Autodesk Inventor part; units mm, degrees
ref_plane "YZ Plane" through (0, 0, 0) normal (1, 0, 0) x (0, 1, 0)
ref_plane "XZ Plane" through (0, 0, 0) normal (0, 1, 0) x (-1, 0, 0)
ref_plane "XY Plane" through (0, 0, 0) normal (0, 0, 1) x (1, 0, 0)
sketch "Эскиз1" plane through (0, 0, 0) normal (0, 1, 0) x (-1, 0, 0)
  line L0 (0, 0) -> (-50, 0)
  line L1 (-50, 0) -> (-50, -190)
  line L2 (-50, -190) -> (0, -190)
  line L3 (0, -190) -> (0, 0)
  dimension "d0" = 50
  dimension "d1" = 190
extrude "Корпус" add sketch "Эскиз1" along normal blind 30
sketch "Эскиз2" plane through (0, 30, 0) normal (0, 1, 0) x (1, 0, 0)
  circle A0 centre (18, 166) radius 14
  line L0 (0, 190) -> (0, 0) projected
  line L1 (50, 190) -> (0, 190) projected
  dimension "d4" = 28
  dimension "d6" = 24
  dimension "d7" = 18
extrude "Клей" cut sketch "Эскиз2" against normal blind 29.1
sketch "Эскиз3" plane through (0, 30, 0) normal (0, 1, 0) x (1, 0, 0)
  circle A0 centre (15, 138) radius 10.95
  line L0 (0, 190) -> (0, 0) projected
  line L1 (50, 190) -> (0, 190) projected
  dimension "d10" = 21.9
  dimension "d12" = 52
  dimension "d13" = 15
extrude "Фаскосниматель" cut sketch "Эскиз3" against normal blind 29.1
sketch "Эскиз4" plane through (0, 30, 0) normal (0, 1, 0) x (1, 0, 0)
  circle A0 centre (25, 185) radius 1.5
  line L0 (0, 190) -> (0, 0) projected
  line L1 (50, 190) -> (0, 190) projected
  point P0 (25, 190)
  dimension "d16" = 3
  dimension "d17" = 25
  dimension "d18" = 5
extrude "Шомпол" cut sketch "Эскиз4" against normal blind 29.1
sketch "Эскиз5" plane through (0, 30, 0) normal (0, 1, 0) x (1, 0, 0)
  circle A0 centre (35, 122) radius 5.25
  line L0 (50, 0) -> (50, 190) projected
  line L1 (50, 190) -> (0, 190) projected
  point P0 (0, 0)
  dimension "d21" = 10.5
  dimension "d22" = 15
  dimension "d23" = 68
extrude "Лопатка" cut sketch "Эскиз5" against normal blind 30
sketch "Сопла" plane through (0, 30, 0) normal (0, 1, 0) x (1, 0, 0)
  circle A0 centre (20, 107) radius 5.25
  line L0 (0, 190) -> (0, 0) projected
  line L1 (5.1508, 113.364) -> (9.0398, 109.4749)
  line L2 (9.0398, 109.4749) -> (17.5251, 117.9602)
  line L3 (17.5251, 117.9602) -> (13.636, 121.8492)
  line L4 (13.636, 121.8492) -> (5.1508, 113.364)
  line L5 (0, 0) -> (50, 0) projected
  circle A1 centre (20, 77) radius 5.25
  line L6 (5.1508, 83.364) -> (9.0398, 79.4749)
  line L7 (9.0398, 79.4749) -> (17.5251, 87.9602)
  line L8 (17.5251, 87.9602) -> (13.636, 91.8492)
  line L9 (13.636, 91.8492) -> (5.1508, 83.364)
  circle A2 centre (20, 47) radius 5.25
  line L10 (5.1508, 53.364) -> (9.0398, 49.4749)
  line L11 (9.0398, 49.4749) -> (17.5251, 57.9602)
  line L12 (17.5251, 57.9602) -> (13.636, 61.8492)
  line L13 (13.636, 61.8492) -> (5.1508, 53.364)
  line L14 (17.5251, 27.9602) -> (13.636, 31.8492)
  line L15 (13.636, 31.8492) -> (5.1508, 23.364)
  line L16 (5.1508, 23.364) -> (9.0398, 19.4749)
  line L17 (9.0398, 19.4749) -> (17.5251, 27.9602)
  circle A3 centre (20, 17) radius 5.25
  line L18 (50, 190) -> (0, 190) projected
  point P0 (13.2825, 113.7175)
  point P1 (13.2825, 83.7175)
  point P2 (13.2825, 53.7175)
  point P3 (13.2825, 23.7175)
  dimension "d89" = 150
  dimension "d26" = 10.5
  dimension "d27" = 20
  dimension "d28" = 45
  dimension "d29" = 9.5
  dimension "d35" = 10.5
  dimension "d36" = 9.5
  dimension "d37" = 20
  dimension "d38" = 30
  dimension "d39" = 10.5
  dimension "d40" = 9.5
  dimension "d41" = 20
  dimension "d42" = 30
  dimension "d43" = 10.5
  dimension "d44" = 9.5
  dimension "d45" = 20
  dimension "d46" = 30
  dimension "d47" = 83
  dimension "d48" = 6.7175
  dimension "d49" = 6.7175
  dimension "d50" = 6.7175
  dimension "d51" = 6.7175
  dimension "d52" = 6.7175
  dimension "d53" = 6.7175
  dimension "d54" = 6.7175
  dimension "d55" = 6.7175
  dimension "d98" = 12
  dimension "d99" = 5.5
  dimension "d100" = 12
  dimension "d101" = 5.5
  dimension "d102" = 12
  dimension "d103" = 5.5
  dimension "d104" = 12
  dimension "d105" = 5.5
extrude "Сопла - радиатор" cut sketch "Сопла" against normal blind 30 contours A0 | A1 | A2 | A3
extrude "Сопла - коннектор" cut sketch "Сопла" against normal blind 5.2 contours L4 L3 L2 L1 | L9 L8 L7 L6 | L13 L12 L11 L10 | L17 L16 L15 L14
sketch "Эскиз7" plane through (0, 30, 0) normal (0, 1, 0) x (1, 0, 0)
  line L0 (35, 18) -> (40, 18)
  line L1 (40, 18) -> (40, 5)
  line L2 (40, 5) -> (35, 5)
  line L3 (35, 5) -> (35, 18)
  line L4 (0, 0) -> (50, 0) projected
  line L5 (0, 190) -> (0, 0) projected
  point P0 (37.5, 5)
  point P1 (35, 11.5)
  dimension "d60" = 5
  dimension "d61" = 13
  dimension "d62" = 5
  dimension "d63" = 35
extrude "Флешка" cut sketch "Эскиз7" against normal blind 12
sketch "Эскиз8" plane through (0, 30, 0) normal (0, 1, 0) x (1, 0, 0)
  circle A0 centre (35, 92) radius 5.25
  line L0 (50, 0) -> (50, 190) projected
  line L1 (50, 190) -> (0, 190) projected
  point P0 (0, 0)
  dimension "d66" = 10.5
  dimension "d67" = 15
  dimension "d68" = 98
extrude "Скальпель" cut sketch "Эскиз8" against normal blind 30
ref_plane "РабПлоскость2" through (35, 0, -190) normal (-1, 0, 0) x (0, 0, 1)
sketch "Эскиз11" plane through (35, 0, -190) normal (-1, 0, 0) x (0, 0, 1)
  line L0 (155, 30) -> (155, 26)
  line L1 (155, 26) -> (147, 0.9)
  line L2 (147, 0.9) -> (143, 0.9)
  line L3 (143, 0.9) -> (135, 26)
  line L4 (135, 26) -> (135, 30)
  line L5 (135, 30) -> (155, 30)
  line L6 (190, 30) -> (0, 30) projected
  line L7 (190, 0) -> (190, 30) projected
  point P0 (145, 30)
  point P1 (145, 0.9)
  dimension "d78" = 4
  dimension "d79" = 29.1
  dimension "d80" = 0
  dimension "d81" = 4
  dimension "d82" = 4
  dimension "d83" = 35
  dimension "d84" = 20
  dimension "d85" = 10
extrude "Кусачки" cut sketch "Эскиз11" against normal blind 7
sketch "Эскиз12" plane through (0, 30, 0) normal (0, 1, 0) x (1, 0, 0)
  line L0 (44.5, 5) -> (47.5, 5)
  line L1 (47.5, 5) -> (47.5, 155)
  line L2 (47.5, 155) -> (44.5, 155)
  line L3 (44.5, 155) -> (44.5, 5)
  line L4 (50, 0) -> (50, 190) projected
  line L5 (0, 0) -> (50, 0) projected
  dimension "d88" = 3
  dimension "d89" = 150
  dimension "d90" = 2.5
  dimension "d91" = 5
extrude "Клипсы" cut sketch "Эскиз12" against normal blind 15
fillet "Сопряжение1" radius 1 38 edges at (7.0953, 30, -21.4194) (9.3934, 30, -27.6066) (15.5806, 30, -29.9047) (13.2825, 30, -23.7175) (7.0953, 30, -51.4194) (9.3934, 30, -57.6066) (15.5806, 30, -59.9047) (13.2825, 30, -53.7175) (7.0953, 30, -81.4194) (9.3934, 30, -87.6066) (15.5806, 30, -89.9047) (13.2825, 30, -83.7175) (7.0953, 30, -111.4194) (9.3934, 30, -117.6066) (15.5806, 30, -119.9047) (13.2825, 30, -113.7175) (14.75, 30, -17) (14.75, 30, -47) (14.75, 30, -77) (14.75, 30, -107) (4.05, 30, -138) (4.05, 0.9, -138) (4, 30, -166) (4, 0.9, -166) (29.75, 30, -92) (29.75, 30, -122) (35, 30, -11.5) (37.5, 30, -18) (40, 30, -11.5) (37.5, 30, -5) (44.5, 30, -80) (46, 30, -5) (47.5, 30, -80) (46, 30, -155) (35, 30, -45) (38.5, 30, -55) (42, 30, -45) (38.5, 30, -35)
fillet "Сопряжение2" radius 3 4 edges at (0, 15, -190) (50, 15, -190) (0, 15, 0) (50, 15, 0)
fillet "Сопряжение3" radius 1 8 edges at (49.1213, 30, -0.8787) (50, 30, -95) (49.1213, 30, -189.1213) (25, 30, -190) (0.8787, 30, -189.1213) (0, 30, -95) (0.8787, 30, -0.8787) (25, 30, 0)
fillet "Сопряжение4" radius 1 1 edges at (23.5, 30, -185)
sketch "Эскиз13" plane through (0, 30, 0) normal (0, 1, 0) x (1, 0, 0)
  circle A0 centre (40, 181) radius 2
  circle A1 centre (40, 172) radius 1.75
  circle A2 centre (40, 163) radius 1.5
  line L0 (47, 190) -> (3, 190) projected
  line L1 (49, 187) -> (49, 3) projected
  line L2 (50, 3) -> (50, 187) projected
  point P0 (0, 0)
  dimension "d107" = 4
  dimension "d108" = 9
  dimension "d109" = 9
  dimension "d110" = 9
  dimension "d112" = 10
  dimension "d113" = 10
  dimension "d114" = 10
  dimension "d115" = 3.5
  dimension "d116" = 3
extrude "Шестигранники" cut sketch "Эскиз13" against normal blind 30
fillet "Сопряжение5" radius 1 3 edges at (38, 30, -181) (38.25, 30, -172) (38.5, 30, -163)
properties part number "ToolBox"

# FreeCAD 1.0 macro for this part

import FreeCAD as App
import Part
import Sketcher
Q = App.Units.Quantity


def edges_at(feature, points):
    """Names of the edges that pass closest to the given points."""
    edges = feature.Shape.Edges
    near = lambda p: min(range(len(edges)), key=lambda i: edges[i].distToShape(Part.Vertex(*p))[0])
    return sorted({f"Edge{near(p) + 1}" for p in points})


def add_polygon(sketch, points):
    """Adds a closed chain of lines whose ends are joined by coincident constraints."""
    first, n = sketch.GeometryCount, len(points)
    for a, b in zip(points, points[1:] + points[:1]):
        sketch.addGeometry(Part.LineSegment(App.Vector(*a, 0), App.Vector(*b, 0)), False)
    for i in range(n):
        sketch.addConstraint(Sketcher.Constraint("Coincident", first + i, 2, first + (i + 1) % n, 1))

doc = App.newDocument("Part")
body = doc.addObject("PartDesign::Body", "Body")

sketch1 = body.newObject("Sketcher::SketchObject", "Sketch")
sketch1.AttachmentSupport = (doc.getObject("XZ_Plane"), [""])
sketch1.MapMode = "FlatFace"
add_polygon(sketch1, [(0, -190), (0, 0), (50, 0), (50, -190)])
sketch1.addConstraint([
    Sketcher.Constraint("Vertical", 0),
    Sketcher.Constraint("Horizontal", 1),
    Sketcher.Constraint("Vertical", 2),
    Sketcher.Constraint("Horizontal", 3),
    Sketcher.Constraint("Coincident", 0, 2, -1, 1),
    Sketcher.Constraint("DistanceX", 1, 1, 1, 2, Q("50 mm")),
    Sketcher.Constraint("DistanceY", 0, 1, 0, 2, Q("190 mm")),
])
pad1 = body.newObject("PartDesign::Pad", "Pad")
pad1.Profile = sketch1
pad1.Length = 30
pad1.Reversed = True

sketch2 = body.newObject("Sketcher::SketchObject", "Sketch001")
sketch2.AttachmentSupport = (doc.getObject("XZ_Plane"), [""])
sketch2.MapMode = "FlatFace"
sketch2.AttachmentOffset = App.Placement(App.Vector(0, 0, -30), App.Rotation())
sketch2.addGeometry(Part.Circle(App.Vector(18, -166, 0), App.Vector(0, 0, 1), 14), False)
sketch2.addConstraint([
    Sketcher.Constraint("Diameter", 0, Q("28 mm")),
    Sketcher.Constraint("DistanceX", -1, 1, 0, 3, Q("18 mm")),
    Sketcher.Constraint("DistanceY", 0, 3, -1, 1, Q("166 mm")),
])
pocket1 = body.newObject("PartDesign::Pocket", "Pocket")
pocket1.Profile = sketch2
pocket1.Length = 29.1
pocket1.Reversed = True

sketch3 = body.newObject("Sketcher::SketchObject", "Sketch002")
sketch3.AttachmentSupport = (doc.getObject("XZ_Plane"), [""])
sketch3.MapMode = "FlatFace"
sketch3.AttachmentOffset = App.Placement(App.Vector(0, 0, -30), App.Rotation())
sketch3.addGeometry(Part.Circle(App.Vector(15, -138, 0), App.Vector(0, 0, 1), 11), False)
sketch3.addConstraint([
    Sketcher.Constraint("Diameter", 0, Q("21.9 mm")),
    Sketcher.Constraint("DistanceX", -1, 1, 0, 3, Q("15 mm")),
    Sketcher.Constraint("DistanceY", 0, 3, -1, 1, Q("138 mm")),
])
pocket2 = body.newObject("PartDesign::Pocket", "Pocket001")
pocket2.Profile = sketch3
pocket2.Length = 29.1
pocket2.Reversed = True

sketch4 = body.newObject("Sketcher::SketchObject", "Sketch003")
sketch4.AttachmentSupport = (doc.getObject("XZ_Plane"), [""])
sketch4.MapMode = "FlatFace"
sketch4.AttachmentOffset = App.Placement(App.Vector(0, 0, -30), App.Rotation())
sketch4.addGeometry(Part.Circle(App.Vector(25, -185, 0), App.Vector(0, 0, 1), 1.5), False)
sketch4.addConstraint([
    Sketcher.Constraint("Diameter", 0, Q("3 mm")),
    Sketcher.Constraint("DistanceX", -1, 1, 0, 3, Q("25 mm")),
    Sketcher.Constraint("DistanceY", 0, 3, -1, 1, Q("185 mm")),
])
pocket3 = body.newObject("PartDesign::Pocket", "Pocket002")
pocket3.Profile = sketch4
pocket3.Length = 29.1
pocket3.Reversed = True

sketch5 = body.newObject("Sketcher::SketchObject", "Sketch004")
sketch5.AttachmentSupport = (doc.getObject("XZ_Plane"), [""])
sketch5.MapMode = "FlatFace"
sketch5.AttachmentOffset = App.Placement(App.Vector(0, 0, -30), App.Rotation())
sketch5.addGeometry(Part.Circle(App.Vector(35, -122, 0), App.Vector(0, 0, 1), 5), False)
sketch5.addConstraint([
    Sketcher.Constraint("Diameter", 0, Q("10.5 mm")),
    Sketcher.Constraint("DistanceX", -1, 1, 0, 3, Q("35 mm")),
    Sketcher.Constraint("DistanceY", 0, 3, -1, 1, Q("122 mm")),
])
pocket4 = body.newObject("PartDesign::Pocket", "Pocket003")
pocket4.Profile = sketch5
pocket4.Length = 30
pocket4.Reversed = True

sketch6 = body.newObject("Sketcher::SketchObject", "Sketch005")
sketch6.AttachmentSupport = (doc.getObject("XZ_Plane"), [""])
sketch6.MapMode = "FlatFace"
sketch6.AttachmentOffset = App.Placement(App.Vector(0, 0, -30), App.Rotation())
sketch6.addGeometry([
    Part.Circle(App.Vector(20, -107, 0), App.Vector(0, 0, 1), 5),
    Part.Circle(App.Vector(20, -77, 0), App.Vector(0, 0, 1), 5),
    Part.Circle(App.Vector(20, -47, 0), App.Vector(0, 0, 1), 5),
    Part.Circle(App.Vector(20, -17, 0), App.Vector(0, 0, 1), 5),
], False)
sketch6.addConstraint([
    Sketcher.Constraint("Equal", 0, 1),
    Sketcher.Constraint("Equal", 1, 2),
    Sketcher.Constraint("Equal", 2, 3),
    Sketcher.Constraint("Vertical", 0, 3, 1, 3),
    Sketcher.Constraint("Vertical", 1, 3, 2, 3),
    Sketcher.Constraint("Vertical", 2, 3, 3, 3),
    Sketcher.Constraint("Diameter", 0, Q("10.5 mm")),
    Sketcher.Constraint("DistanceX", -1, 1, 0, 3, Q("20 mm")),
    Sketcher.Constraint("DistanceY", 0, 3, 1, 3, Q("30 mm")),
    Sketcher.Constraint("DistanceY", 1, 3, 2, 3, Q("30 mm")),
    Sketcher.Constraint("DistanceY", 2, 3, 3, 3, Q("30 mm")),
    Sketcher.Constraint("DistanceY", 0, 3, -1, 1, Q("107 mm")),
])
pocket5 = body.newObject("PartDesign::Pocket", "Pocket004")
pocket5.Profile = sketch6
pocket5.Length = 30
pocket5.Reversed = True

sketch7 = body.newObject("Sketcher::SketchObject", "Sketch006")
sketch7.AttachmentSupport = (doc.getObject("XZ_Plane"), [""])
sketch7.MapMode = "FlatFace"
sketch7.AttachmentOffset = App.Placement(App.Vector(0, 0, -30), App.Rotation())
add_polygon(sketch7, [(14, -122), (5, -113), (9, -109), (18, -118)])
add_polygon(sketch7, [(14, -92), (5, -83), (9, -79), (18, -88)])
add_polygon(sketch7, [(14, -62), (5, -53), (9, -49), (18, -58)])
add_polygon(sketch7, [(9, -19), (18, -28), (14, -32), (5, -23)])
sketch7.addConstraint([
    Sketcher.Constraint("Perpendicular", 0, 1),
    Sketcher.Constraint("Perpendicular", 1, 2),
    Sketcher.Constraint("Perpendicular", 2, 3),
    Sketcher.Constraint("Perpendicular", 3, 4),
    Sketcher.Constraint("Perpendicular", 4, 5),
    Sketcher.Constraint("Perpendicular", 5, 6),
    Sketcher.Constraint("Perpendicular", 6, 7),
    Sketcher.Constraint("Perpendicular", 7, 8),
    Sketcher.Constraint("Perpendicular", 8, 9),
    Sketcher.Constraint("Perpendicular", 9, 10),
    Sketcher.Constraint("Perpendicular", 10, 11),
    Sketcher.Constraint("Perpendicular", 11, 12),
    Sketcher.Constraint("Perpendicular", 12, 13),
    Sketcher.Constraint("Perpendicular", 13, 14),
    Sketcher.Constraint("Perpendicular", 14, 15),
    Sketcher.Constraint("Vertical", 0, 2, 4, 2),
    Sketcher.Constraint("Vertical", 1, 2, 5, 2),
    Sketcher.Constraint("Vertical", 2, 2, 6, 2),
    Sketcher.Constraint("Vertical", 4, 2, 8, 2),
    Sketcher.Constraint("Vertical", 5, 2, 9, 2),
    Sketcher.Constraint("Vertical", 6, 2, 10, 2),
    Sketcher.Constraint("Vertical", 10, 2, 12, 2),
    Sketcher.Constraint("Vertical", 11, 2, 13, 2),
    Sketcher.Constraint("Vertical", 8, 2, 14, 2),
    Sketcher.Constraint("Angle", 2, Q("-45 deg")),
    Sketcher.Constraint("Distance", 0, Q("12 mm")),
    Sketcher.Constraint("DistanceY", 0, 2, 4, 2, Q("30 mm")),
    Sketcher.Constraint("DistanceY", 4, 2, 8, 2, Q("30 mm")),
    Sketcher.Constraint("DistanceY", 10, 2, 12, 2, Q("30 mm")),
    Sketcher.Constraint("Distance", 1, Q("5.5 mm")),
    Sketcher.Constraint("DistanceY", 0, 2, -1, 1, Q("113.364 mm")),
    Sketcher.Constraint("DistanceX", -1, 1, 2, 2, Q("17.525 mm")),
])
pocket6 = body.newObject("PartDesign::Pocket", "Pocket005")
pocket6.Profile = sketch7
pocket6.Length = 5.2
pocket6.Reversed = True

sketch8 = body.newObject("Sketcher::SketchObject", "Sketch007")
sketch8.AttachmentSupport = (doc.getObject("XZ_Plane"), [""])
sketch8.MapMode = "FlatFace"
sketch8.AttachmentOffset = App.Placement(App.Vector(0, 0, -30), App.Rotation())
add_polygon(sketch8, [(40, -18), (35, -18), (35, -5), (40, -5)])
sketch8.addConstraint([
    Sketcher.Constraint("Horizontal", 0),
    Sketcher.Constraint("Vertical", 1),
    Sketcher.Constraint("Horizontal", 2),
    Sketcher.Constraint("Vertical", 3),
    Sketcher.Constraint("DistanceX", 0, 2, 0, 1, Q("5 mm")),
    Sketcher.Constraint("DistanceY", 1, 1, 1, 2, Q("13 mm")),
    Sketcher.Constraint("DistanceX", -1, 1, 0, 2, Q("35 mm")),
    Sketcher.Constraint("DistanceY", 1, 2, -1, 1, Q("5 mm")),
])
pocket7 = body.newObject("PartDesign::Pocket", "Pocket006")
pocket7.Profile = sketch8
pocket7.Length = 12
pocket7.Reversed = True

sketch9 = body.newObject("Sketcher::SketchObject", "Sketch008")
sketch9.AttachmentSupport = (doc.getObject("XZ_Plane"), [""])
sketch9.MapMode = "FlatFace"
sketch9.AttachmentOffset = App.Placement(App.Vector(0, 0, -30), App.Rotation())
sketch9.addGeometry(Part.Circle(App.Vector(35, -92, 0), App.Vector(0, 0, 1), 5), False)
sketch9.addConstraint([
    Sketcher.Constraint("Diameter", 0, Q("10.5 mm")),
    Sketcher.Constraint("DistanceX", -1, 1, 0, 3, Q("35 mm")),
    Sketcher.Constraint("DistanceY", 0, 3, -1, 1, Q("92 mm")),
])
pocket8 = body.newObject("PartDesign::Pocket", "Pocket007")
pocket8.Profile = sketch9
pocket8.Length = 30
pocket8.Reversed = True

sketch10 = body.newObject("Sketcher::SketchObject", "Sketch009")
sketch10.AttachmentSupport = (doc.getObject("YZ_Plane"), [""])
sketch10.MapMode = "FlatFace"
sketch10.AttachmentOffset = App.Placement(App.Vector(0, 0, 35), App.Rotation())
add_polygon(sketch10, [(26, -35), (30, -35), (30, -55), (26, -55), (0.9, -47), (0.9, -43)])
sketch10.addConstraint([
    Sketcher.Constraint("Horizontal", 0),
    Sketcher.Constraint("Vertical", 1),
    Sketcher.Constraint("Horizontal", 2),
    Sketcher.Constraint("Vertical", 4),
    Sketcher.Constraint("Vertical", 2, 2, 5, 2),
    Sketcher.Constraint("Equal", 2, 4),
    Sketcher.Constraint("Equal", 3, 5),
    Sketcher.Constraint("DistanceX", 0, 1, 0, 2, Q("4 mm")),
    Sketcher.Constraint("DistanceY", 1, 2, 1, 1, Q("20 mm")),
    Sketcher.Constraint("DistanceY", 0, 2, -1, 1, Q("35 mm")),
    Sketcher.Constraint("DistanceX", 3, 2, 1, 2, Q("29.1 mm")),
    Sketcher.Constraint("DistanceX", -1, 1, 0, 2, Q("30 mm")),
])
pocket9 = body.newObject("PartDesign::Pocket", "Pocket008")
pocket9.Profile = sketch10
pocket9.Length = 7
pocket9.Reversed = True

sketch11 = body.newObject("Sketcher::SketchObject", "Sketch010")
sketch11.AttachmentSupport = (doc.getObject("XZ_Plane"), [""])
sketch11.MapMode = "FlatFace"
sketch11.AttachmentOffset = App.Placement(App.Vector(0, 0, -30), App.Rotation())
add_polygon(sketch11, [(44.5, -155), (44.5, -5), (47.5, -5), (47.5, -155)])
sketch11.addConstraint([
    Sketcher.Constraint("Vertical", 0),
    Sketcher.Constraint("Horizontal", 1),
    Sketcher.Constraint("Vertical", 2),
    Sketcher.Constraint("Horizontal", 3),
    Sketcher.Constraint("DistanceX", 1, 1, 1, 2, Q("3 mm")),
    Sketcher.Constraint("DistanceY", 0, 1, 0, 2, Q("150 mm")),
    Sketcher.Constraint("DistanceY", 0, 2, -1, 1, Q("5 mm")),
    Sketcher.Constraint("DistanceX", -1, 1, 0, 2, Q("44.5 mm")),
])
pocket10 = body.newObject("PartDesign::Pocket", "Pocket009")
pocket10.Profile = sketch11
pocket10.Length = 15
pocket10.Reversed = True
doc.recompute()

fillet = body.newObject("PartDesign::Fillet", "Fillet")
fillet.Base = (pocket10, edges_at(pocket10, [
    (7.095, 30, -21.419),
    (9.393, 30, -27.607),
    (15.581, 30, -29.905),
    (13.283, 30, -23.718),
    (7.095, 30, -51.419),
    (9.393, 30, -57.607),
    (15.581, 30, -59.905),
    (13.283, 30, -53.718),
    (7.095, 30, -81.419),
    (9.393, 30, -87.607),
    (15.581, 30, -89.905),
    (13.283, 30, -83.718),
    (7.095, 30, -111.419),
    (9.393, 30, -117.607),
    (15.581, 30, -119.905),
    (13.283, 30, -113.718),
    (14.75, 30, -17),
    (14.75, 30, -47),
    (14.75, 30, -77),
    (14.75, 30, -107),
    (4.05, 30, -138),
    (4.05, 0.9, -138),
    (4, 30, -166),
    (4, 0.9, -166),
    (29.75, 30, -92),
    (29.75, 30, -122),
    (35, 30, -11.5),
    (37.5, 30, -18),
    (40, 30, -11.5),
    (37.5, 30, -5),
    (44.5, 30, -80),
    (46, 30, -5),
    (47.5, 30, -80),
    (46, 30, -155),
    (35, 30, -45),
    (38.5, 30, -55),
    (42, 30, -45),
    (38.5, 30, -35),
]))
fillet.Radius = 1
doc.recompute()

fillet2 = body.newObject("PartDesign::Fillet", "Fillet001")
fillet2.Base = (fillet, edges_at(fillet, [
    (0, 15, -190),
    (50, 15, -190),
    (0, 15, 0),
    (50, 15, 0),
]))
fillet2.Radius = 3
doc.recompute()

fillet3 = body.newObject("PartDesign::Fillet", "Fillet002")
fillet3.Base = (fillet2, edges_at(fillet2, [
    (49.121, 30, -0.879),
    (50, 30, -95),
    (49.121, 30, -189.121),
    (25, 30, -190),
    (0.879, 30, -189.121),
    (0, 30, -95),
    (0.879, 30, -0.879),
    (25, 30, 0),
]))
fillet3.Radius = 1
doc.recompute()

fillet4 = body.newObject("PartDesign::Fillet", "Fillet003")
fillet4.Base = (fillet3, edges_at(fillet3, [(23.5, 30, -185)]))
fillet4.Radius = 1

sketch12 = body.newObject("Sketcher::SketchObject", "Sketch011")
sketch12.AttachmentSupport = (doc.getObject("XZ_Plane"), [""])
sketch12.MapMode = "FlatFace"
sketch12.AttachmentOffset = App.Placement(App.Vector(0, 0, -30), App.Rotation())
sketch12.addGeometry([
    Part.Circle(App.Vector(40, -181, 0), App.Vector(0, 0, 1), 2),
    Part.Circle(App.Vector(40, -172, 0), App.Vector(0, 0, 1), 1.8),
    Part.Circle(App.Vector(40, -163, 0), App.Vector(0, 0, 1), 1.5),
], False)
sketch12.addConstraint([
    Sketcher.Constraint("Vertical", 0, 3, 1, 3),
    Sketcher.Constraint("Vertical", 1, 3, 2, 3),
    Sketcher.Constraint("Diameter", 0, Q("4 mm")),
    Sketcher.Constraint("Diameter", 2, Q("3 mm")),
    Sketcher.Constraint("Diameter", 1, Q("3.5 mm")),
    Sketcher.Constraint("DistanceY", 0, 3, 1, 3, Q("9 mm")),
    Sketcher.Constraint("DistanceY", 1, 3, 2, 3, Q("9 mm")),
    Sketcher.Constraint("DistanceX", -1, 1, 0, 3, Q("40 mm")),
    Sketcher.Constraint("DistanceY", 0, 3, -1, 1, Q("181 mm")),
])
pocket11 = body.newObject("PartDesign::Pocket", "Pocket010")
pocket11.Profile = sketch12
pocket11.Length = 30
pocket11.Reversed = True
doc.recompute()

fillet5 = body.newObject("PartDesign::Fillet", "Fillet004")
fillet5.Base = (pocket11, edges_at(pocket11, [(38, 30, -181), (38.25, 30, -172), (38.5, 30, -163)]))
fillet5.Radius = 1

doc.recompute()
